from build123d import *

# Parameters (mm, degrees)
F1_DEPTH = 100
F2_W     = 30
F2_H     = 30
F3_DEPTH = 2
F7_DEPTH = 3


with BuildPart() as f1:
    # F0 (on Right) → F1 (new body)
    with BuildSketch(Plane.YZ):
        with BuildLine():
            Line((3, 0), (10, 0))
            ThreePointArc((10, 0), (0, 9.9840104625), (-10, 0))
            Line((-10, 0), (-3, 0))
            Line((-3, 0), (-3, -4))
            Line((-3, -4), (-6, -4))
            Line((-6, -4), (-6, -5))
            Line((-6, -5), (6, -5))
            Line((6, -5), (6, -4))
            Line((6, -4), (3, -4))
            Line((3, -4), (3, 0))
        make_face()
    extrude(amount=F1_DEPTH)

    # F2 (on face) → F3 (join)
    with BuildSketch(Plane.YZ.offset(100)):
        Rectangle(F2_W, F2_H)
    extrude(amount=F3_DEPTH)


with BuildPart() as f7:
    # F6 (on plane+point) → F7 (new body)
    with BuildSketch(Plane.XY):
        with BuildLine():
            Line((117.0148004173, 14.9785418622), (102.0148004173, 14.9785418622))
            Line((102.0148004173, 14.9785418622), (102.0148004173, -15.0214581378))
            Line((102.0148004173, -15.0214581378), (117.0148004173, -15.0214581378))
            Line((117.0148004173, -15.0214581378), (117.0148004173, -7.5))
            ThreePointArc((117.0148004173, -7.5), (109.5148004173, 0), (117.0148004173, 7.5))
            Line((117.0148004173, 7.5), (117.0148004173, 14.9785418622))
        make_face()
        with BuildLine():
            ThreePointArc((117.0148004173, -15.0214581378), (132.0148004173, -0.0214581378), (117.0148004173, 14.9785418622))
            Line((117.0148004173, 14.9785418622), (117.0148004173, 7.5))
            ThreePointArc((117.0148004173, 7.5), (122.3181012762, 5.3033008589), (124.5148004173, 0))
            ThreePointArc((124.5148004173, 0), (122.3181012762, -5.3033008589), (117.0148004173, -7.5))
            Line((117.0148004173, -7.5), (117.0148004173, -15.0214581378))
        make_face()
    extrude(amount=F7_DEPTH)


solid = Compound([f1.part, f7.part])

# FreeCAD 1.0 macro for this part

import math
import FreeCAD as App
import Part
import Sketcher
from FreeCAD import Vector
Q = App.Units.Quantity


def add_polygon(sketch, points):
    """Adds a closed chain of lines whose ends are joined by coincident constraints."""
    first, n = sketch.GeometryCount, len(points)
    for a, b in zip(points, points[1:] + points[:1]):
        sketch.addGeometry(Part.LineSegment(App.Vector(*a, 0), App.Vector(*b, 0)), False)
    for i in range(n):
        sketch.addConstraint(Sketcher.Constraint("Coincident", first + i, 2, first + (i + 1) % n, 1))

doc = App.newDocument("Part")
body = doc.addObject("PartDesign::Body", "Body")

# Sketch on YZ plane
sketch1 = doc.addObject("Sketcher::SketchObject", "Sketch")
body.addObject(sketch1)
sketch1.AttachmentSupport = (doc.YZ_Plane, [""])
sketch1.MapMode = "FlatFace"
sketch1.addGeometry([
    Part.LineSegment(Vector(3, 0, 0), Vector(10, 0, 0)),  # 0
    Part.ArcOfCircle(Part.Circle(Vector(0, 0, 0), Vector(0, 0, 1), 10), math.radians(0), math.radians(180)),  # 1
    Part.LineSegment(Vector(-10, 0, 0), Vector(-3, 0, 0)),  # 2
    Part.LineSegment(Vector(-3, 0, 0), Vector(-3, -4, 0)),  # 3
    Part.LineSegment(Vector(-3, -4, 0), Vector(-6, -4, 0)),  # 4
    Part.LineSegment(Vector(-6, -4, 0), Vector(-6, -5, 0)),  # 5
    Part.LineSegment(Vector(-6, -5, 0), Vector(6, -5, 0)),  # 6
    Part.LineSegment(Vector(6, -5, 0), Vector(6, -4, 0)),  # 7
    Part.LineSegment(Vector(6, -4, 0), Vector(3, -4, 0)),  # 8
    Part.LineSegment(Vector(3, -4, 0), Vector(3, 0, 0)),  # 9
], False)
sketch1.addConstraint([
    Sketcher.Constraint("Coincident", 0, 2, 1, 1),
    Sketcher.Constraint("Coincident", 1, 2, 2, 1),
    Sketcher.Constraint("Coincident", 2, 2, 3, 1),
    Sketcher.Constraint("Coincident", 3, 2, 4, 1),
    Sketcher.Constraint("Coincident", 4, 2, 5, 1),
    Sketcher.Constraint("Coincident", 5, 2, 6, 1),
    Sketcher.Constraint("Coincident", 6, 2, 7, 1),
    Sketcher.Constraint("Coincident", 7, 2, 8, 1),
    Sketcher.Constraint("Coincident", 8, 2, 9, 1),
    Sketcher.Constraint("Coincident", 9, 2, 0, 1),
    Sketcher.Constraint("Horizontal", 0),
    Sketcher.Constraint("Horizontal", 2),
    Sketcher.Constraint("Vertical", 3),
    Sketcher.Constraint("Horizontal", 4),
    Sketcher.Constraint("Vertical", 5),
    Sketcher.Constraint("Horizontal", 6),
    Sketcher.Constraint("Vertical", 7),
    Sketcher.Constraint("Horizontal", 8),
    Sketcher.Constraint("Vertical", 9),
    Sketcher.Constraint("Symmetric", 0, 2, 1, 2, -1, 1),
    Sketcher.Constraint("Symmetric", 4, 2, 7, 2, -2),
    Sketcher.Constraint("Symmetric", 2, 2, 9, 2, -2),
    Sketcher.Constraint("DistanceX", 0, 1, 0, 2, Q("7 mm")),
    Sketcher.Constraint("DistanceX", 4, 2, 4, 1, Q("3 mm")),
    Sketcher.Constraint("DistanceX", 6, 1, 6, 2, Q("12 mm")),
    Sketcher.Constraint("DistanceY", 3, 2, 3, 1, Q("4 mm")),
    Sketcher.Constraint("DistanceY", 5, 2, 5, 1, Q("1 mm")),
    Sketcher.Constraint("DistanceY", 1, 3, -1, 1, Q("0.016002 mm")),
])
pad1 = doc.addObject("PartDesign::Pad", "Pad")
body.addObject(pad1)
pad1.Profile = sketch1
pad1.Length = 100

# Sketch on YZ plane
sketch2 = doc.addObject("Sketcher::SketchObject", "Sketch001")
body.addObject(sketch2)
sketch2.AttachmentSupport = (doc.YZ_Plane, [""])
sketch2.MapMode = "FlatFace"
sketch2.AttachmentOffset = App.Placement(Vector(0, 0, 100), App.Rotation())
add_polygon(sketch2, [(-15, 15), (-15, -15), (15, -15), (15, 15)])  # lines 0-3
sketch2.addConstraint([
    Sketcher.Constraint("Vertical", 0),
    Sketcher.Constraint("Horizontal", 1),
    Sketcher.Constraint("Vertical", 2),
    Sketcher.Constraint("Horizontal", 3),
    Sketcher.Constraint("Symmetric", 0, 2, 2, 2, -1, 1),
    Sketcher.Constraint("Equal", 3, 0),
    Sketcher.Constraint("DistanceX", 1, 1, 1, 2, Q("30 mm")),
])
pad2 = doc.addObject("PartDesign::Pad", "Pad001")
body.addObject(pad2)
pad2.Profile = sketch2
pad2.Length = 2
body2 = doc.addObject("PartDesign::Body", "Body001")

# Sketch on XY plane
sketch3 = doc.addObject("Sketcher::SketchObject", "Sketch002")
body2.addObject(sketch3)
sketch3.AttachmentSupport = (doc.getObject("XY_Plane001"), [""])
sketch3.MapMode = "FlatFace"
sketch3.addGeometry([
    Part.LineSegment(Vector(117, 15, 0), Vector(102, 15, 0)),  # 0
    Part.LineSegment(Vector(102, 15, 0), Vector(102, -15, 0)),  # 1
    Part.LineSegment(Vector(102, -15, 0), Vector(117, -15, 0)),  # 2
    Part.ArcOfCircle(Part.Circle(Vector(117, 0, 0), Vector(0, 0, 1), 15), math.radians(-90), math.radians(90)),  # 3
    Part.Circle(Vector(117, 0, 0), Vector(0, 0, 1), 8),  # 4
], False)
sketch3.addConstraint([
    Sketcher.Constraint("Coincident", 0, 2, 1, 1),
    Sketcher.Constraint("Coincident", 1, 2, 2, 1),
    Sketcher.Constraint("Tangent", 2, 2, 3, 1),
    Sketcher.Constraint("Tangent", 3, 2, 0, 1),
    Sketcher.Constraint("Horizontal", 0),
    Sketcher.Constraint("Vertical", 1),
    Sketcher.Constraint("Horizontal", 2),
    Sketcher.Constraint("PointOnObject", 4, 3, -1),
    Sketcher.Constraint("Vertical", 3, 3, 4, 3),
    Sketcher.Constraint("Diameter", 4, Q("15 mm")),
    Sketcher.Constraint("Radius", 3, Q("15 mm")),
    Sketcher.Constraint("DistanceX", 0, 2, 0, 1, Q("15 mm")),
    Sketcher.Constraint("DistanceX", -1, 1, 3, 3, Q("117.0148 mm")),
    Sketcher.Constraint("DistanceY", 3, 3, -1, 1, Q("0.021458 mm")),
])
pad3 = doc.addObject("PartDesign::Pad", "Pad002")
body2.addObject(pad3)
pad3.Profile = sketch3
pad3.Length = 3

doc.recompute()
